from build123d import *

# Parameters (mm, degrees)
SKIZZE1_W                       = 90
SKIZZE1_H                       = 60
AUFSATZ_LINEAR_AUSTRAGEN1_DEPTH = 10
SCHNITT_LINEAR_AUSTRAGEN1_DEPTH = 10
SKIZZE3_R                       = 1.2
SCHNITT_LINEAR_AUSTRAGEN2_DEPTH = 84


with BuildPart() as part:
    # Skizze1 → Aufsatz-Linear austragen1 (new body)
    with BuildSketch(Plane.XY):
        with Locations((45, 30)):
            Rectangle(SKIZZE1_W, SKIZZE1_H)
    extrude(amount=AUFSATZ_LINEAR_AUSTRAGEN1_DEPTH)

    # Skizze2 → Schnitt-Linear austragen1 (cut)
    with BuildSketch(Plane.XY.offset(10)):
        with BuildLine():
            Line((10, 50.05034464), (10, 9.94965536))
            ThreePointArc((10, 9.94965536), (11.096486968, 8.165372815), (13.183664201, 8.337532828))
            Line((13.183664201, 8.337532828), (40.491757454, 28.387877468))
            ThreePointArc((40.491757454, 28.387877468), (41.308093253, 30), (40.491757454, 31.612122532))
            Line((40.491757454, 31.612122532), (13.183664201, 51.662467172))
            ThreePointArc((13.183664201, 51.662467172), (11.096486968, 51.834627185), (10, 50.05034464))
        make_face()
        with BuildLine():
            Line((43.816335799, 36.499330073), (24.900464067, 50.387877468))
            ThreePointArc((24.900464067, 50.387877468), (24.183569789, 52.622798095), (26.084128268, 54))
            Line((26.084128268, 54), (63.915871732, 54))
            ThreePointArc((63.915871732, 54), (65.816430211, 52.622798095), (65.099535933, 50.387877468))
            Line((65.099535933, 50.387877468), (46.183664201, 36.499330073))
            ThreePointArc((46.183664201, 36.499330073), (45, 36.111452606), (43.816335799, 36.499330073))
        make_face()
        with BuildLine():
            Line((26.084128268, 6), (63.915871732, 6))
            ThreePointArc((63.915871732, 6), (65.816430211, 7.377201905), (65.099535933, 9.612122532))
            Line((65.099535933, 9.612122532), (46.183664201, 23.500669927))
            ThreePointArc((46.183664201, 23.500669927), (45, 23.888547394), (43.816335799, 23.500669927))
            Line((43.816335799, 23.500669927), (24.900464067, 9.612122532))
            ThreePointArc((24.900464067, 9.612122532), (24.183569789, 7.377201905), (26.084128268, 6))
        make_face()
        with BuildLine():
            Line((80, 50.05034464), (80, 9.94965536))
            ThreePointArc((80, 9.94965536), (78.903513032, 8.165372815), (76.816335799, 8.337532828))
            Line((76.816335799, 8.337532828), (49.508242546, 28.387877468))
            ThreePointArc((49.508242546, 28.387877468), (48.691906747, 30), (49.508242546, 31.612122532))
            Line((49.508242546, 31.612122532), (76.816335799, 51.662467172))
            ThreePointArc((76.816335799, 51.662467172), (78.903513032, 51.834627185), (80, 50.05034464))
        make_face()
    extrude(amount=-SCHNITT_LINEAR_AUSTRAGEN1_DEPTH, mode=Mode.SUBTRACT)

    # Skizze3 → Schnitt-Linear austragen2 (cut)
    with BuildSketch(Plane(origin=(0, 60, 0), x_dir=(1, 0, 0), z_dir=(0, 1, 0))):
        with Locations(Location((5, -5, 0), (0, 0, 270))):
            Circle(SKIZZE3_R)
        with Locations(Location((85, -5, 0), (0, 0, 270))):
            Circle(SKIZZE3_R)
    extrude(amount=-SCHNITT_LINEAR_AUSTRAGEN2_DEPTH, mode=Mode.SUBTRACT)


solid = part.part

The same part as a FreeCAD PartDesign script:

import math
import FreeCAD as App
import Part
import Sketcher
from FreeCAD import Vector
Q = App.Units.Quantity


def add_polygon(sketch, points):
    """Adds a closed chain of lines whose ends are joined by coincident constraints."""
    first, n = sketch.GeometryCount, len(points)
    for a, b in zip(points, points[1:] + points[:1]):
        sketch.addGeometry(Part.LineSegment(App.Vector(*a, 0), App.Vector(*b, 0)), False)
    for i in range(n):
        sketch.addConstraint(Sketcher.Constraint("Coincident", first + i, 2, first + (i + 1) % n, 1))

doc = App.newDocument("Part")
params = doc.addObject("Spreadsheet::Sheet", "Params")
for row, (alias, value) in enumerate([
    ("sketch1_width", "90 mm"),
    ("sketch1_height", "60 mm"),
    ("pad1_length", "10 mm"),
    ("sketch2_radius", "2 mm"),
    ("pocket1_length", "10 mm"),
    ("sketch3_diameter", "2.4 mm"),
    ("pocket2_length", "84 mm"),
], start=1):
    params.set(f"A{row}", alias)
    params.set(f"B{row}", "=" + value)
    params.setAlias(f"B{row}", alias)

body = doc.addObject("PartDesign::Body", "Body")

# Sketch on XY plane
sketch1 = doc.addObject("Sketcher::SketchObject", "Sketch")
body.addObject(sketch1)
sketch1.AttachmentSupport = (doc.XY_Plane, [""])
sketch1.MapMode = "FlatFace"
add_polygon(sketch1, [(0, 60), (0, 0), (90, 0), (90, 60)])  # lines 0-3
sketch1.addConstraint(Sketcher.Constraint("Vertical", 0))
sketch1.addConstraint(Sketcher.Constraint("Horizontal", 1))
sketch1.addConstraint(Sketcher.Constraint("Vertical", 2))
sketch1.addConstraint(Sketcher.Constraint("Horizontal", 3))
sketch1.addConstraint(Sketcher.Constraint("Coincident", 0, 2, -1, 1))
sketch1.addConstraint(Sketcher.Constraint("DistanceX", 1, 1, 1, 2, Q("90 mm")))
sketch1.addConstraint(Sketcher.Constraint("DistanceY", 0, 2, 0, 1, Q("60 mm")))
sketch1.setExpression("Constraints[9]", "Params.sketch1_width")
sketch1.setExpression("Constraints[10]", "Params.sketch1_height")
pad1 = doc.addObject("PartDesign::Pad", "Pad")
body.addObject(pad1)
pad1.Profile = sketch1
pad1.setExpression("Length", "Params.pad1_length")

# Sketch on XY plane
sketch2 = doc.addObject("Sketcher::SketchObject", "Sketch001")
body.addObject(sketch2)
sketch2.AttachmentSupport = (doc.XY_Plane, [""])
sketch2.MapMode = "FlatFace"
sketch2.AttachmentOffset = App.Placement(Vector(0, 0, 10), App.Rotation())
sketch2.addGeometry(Part.LineSegment(Vector(10, 50.1, 0), Vector(10, 9.9, 0)), False)
sketch2.addGeometry(Part.ArcOfCircle(Part.Circle(Vector(12, 9.9, 0), Vector(0, 0, 1), 2), math.radians(180), math.radians(306)), False)
sketch2.addGeometry(Part.LineSegment(Vector(13.2, 8.3, 0), Vector(40.5, 28.4, 0)), False)
sketch2.addGeometry(Part.ArcOfCircle(Part.Circle(Vector(39.3, 30, 0), Vector(0, 0, 1), 2), math.radians(-54), math.radians(54)), False)
sketch2.addGeometry(Part.LineSegment(Vector(40.5, 31.6, 0), Vector(13.2, 51.7, 0)), False)
sketch2.addGeometry(Part.ArcOfCircle(Part.Circle(Vector(12, 50.1, 0), Vector(0, 0, 1), 2), math.radians(54), math.radians(180)), False)
sketch2.addGeometry(Part.LineSegment(Vector(24.9, 50.4, 0), Vector(43.8, 36.5, 0)), False)
sketch2.addGeometry(Part.ArcOfCircle(Part.Circle(Vector(45, 38.1, 0), Vector(0, 0, 1), 2), math.radians(-126), math.radians(-54)), False)
sketch2.addGeometry(Part.LineSegment(Vector(46.2, 36.5, 0), Vector(65.1, 50.4, 0)), False)
sketch2.addGeometry(Part.ArcOfCircle(Part.Circle(Vector(63.9, 52, 0), Vector(0, 0, 1), 2), math.radians(-54), math.radians(90)), False)
sketch2.addGeometry(Part.LineSegment(Vector(63.9, 54, 0), Vector(26.1, 54, 0)), False)
sketch2.addGeometry(Part.ArcOfCircle(Part.Circle(Vector(26.1, 52, 0), Vector(0, 0, 1), 2), math.radians(90), math.radians(234)), False)
sketch2.addGeometry(Part.LineSegment(Vector(26.1, 6, 0), Vector(63.9, 6, 0)), False)
sketch2.addGeometry(Part.ArcOfCircle(Part.Circle(Vector(63.9, 8, 0), Vector(0, 0, 1), 2), math.radians(-90), math.radians(54)), False)
sketch2.addGeometry(Part.LineSegment(Vector(65.1, 9.6, 0), Vector(46.2, 23.5, 0)), False)
sketch2.addGeometry(Part.ArcOfCircle(Part.Circle(Vector(45, 21.9, 0), Vector(0, 0, 1), 2), math.radians(54), math.radians(126)), False)
sketch2.addGeometry(Part.LineSegment(Vector(43.8, 23.5, 0), Vector(24.9, 9.6, 0)), False)
sketch2.addGeometry(Part.ArcOfCircle(Part.Circle(Vector(26.1, 8, 0), Vector(0, 0, 1), 2), math.radians(126), math.radians(270)), False)
sketch2.addGeometry(Part.LineSegment(Vector(80, 9.9, 0), Vector(80, 50.1, 0)), False)
sketch2.addGeometry(Part.ArcOfCircle(Part.Circle(Vector(78, 50.1, 0), Vector(0, 0, 1), 2), math.radians(0), math.radians(126)), False)
sketch2.addGeometry(Part.LineSegment(Vector(76.8, 51.7, 0), Vector(49.5, 31.6, 0)), False)
sketch2.addGeometry(Part.ArcOfCircle(Part.Circle(Vector(50.7, 30, 0), Vector(0, 0, 1), 2), math.radians(126), math.radians(234)), False)
sketch2.addGeometry(Part.LineSegment(Vector(49.5, 28.4, 0), Vector(76.8, 8.3, 0)), False)
sketch2.addGeometry(Part.ArcOfCircle(Part.Circle(Vector(78, 9.9, 0), Vector(0, 0, 1), 2), math.radians(-126), math.radians(0)), False)
sketch2.addConstraint(Sketcher.Constraint("Tangent", 0, 2, 1, 1))
sketch2.addConstraint(Sketcher.Constraint("Tangent", 1, 2, 2, 1))
sketch2.addConstraint(Sketcher.Constraint("Tangent", 2, 2, 3, 1))
sketch2.addConstraint(Sketcher.Constraint("Tangent", 3, 2, 4, 1))
sketch2.addConstraint(Sketcher.Constraint("Tangent", 4, 2, 5, 1))
sketch2.addConstraint(Sketcher.Constraint("Tangent", 5, 2, 0, 1))
sketch2.addConstraint(Sketcher.Constraint("Tangent", 6, 2, 7, 1))
sketch2.addConstraint(Sketcher.Constraint("Tangent", 7, 2, 8, 1))
sketch2.addConstraint(Sketcher.Constraint("Tangent", 8, 2, 9, 1))
sketch2.addConstraint(Sketcher.Constraint("Tangent", 9, 2, 10, 1))
sketch2.addConstraint(Sketcher.Constraint("Tangent", 10, 2, 11, 1))
sketch2.addConstraint(Sketcher.Constraint("Tangent", 11, 2, 6, 1))
sketch2.addConstraint(Sketcher.Constraint("Tangent", 12, 2, 13, 1))
sketch2.addConstraint(Sketcher.Constraint("Tangent", 13, 2, 14, 1))
sketch2.addConstraint(Sketcher.Constraint("Tangent", 14, 2, 15, 1))
sketch2.addConstraint(Sketcher.Constraint("Tangent", 15, 2, 16, 1))
sketch2.addConstraint(Sketcher.Constraint("Tangent", 16, 2, 17, 1))
sketch2.addConstraint(Sketcher.Constraint("Tangent", 17, 2, 12, 1))
sketch2.addConstraint(Sketcher.Constraint("Tangent", 18, 2, 19, 1))
sketch2.addConstraint(Sketcher.Constraint("Tangent", 19, 2, 20, 1))
sketch2.addConstraint(Sketcher.Constraint("Tangent", 20, 2, 21, 1))
sketch2.addConstraint(Sketcher.Constraint("Tangent", 21, 2, 22, 1))
sketch2.addConstraint(Sketcher.Constraint("Tangent", 22, 2, 23, 1))
sketch2.addConstraint(Sketcher.Constraint("Tangent", 23, 2, 18, 1))
sketch2.addConstraint(Sketcher.Constraint("Vertical", 0))
sketch2.addConstraint(Sketcher.Constraint("Horizontal", 10))
sketch2.addConstraint(Sketcher.Constraint("Horizontal", 12))
sketch2.addConstraint(Sketcher.Constraint("Vertical", 18))
sketch2.addConstraint(Sketcher.Constraint("Equal", 1, 3))
sketch2.addConstraint(Sketcher.Constraint("Equal", 3, 5))
sketch2.addConstraint(Sketcher.Constraint("Equal", 5, 7))
sketch2.addConstraint(Sketcher.Constraint("Equal", 7, 9))
sketch2.addConstraint(Sketcher.Constraint("Equal", 9, 11))
sketch2.addConstraint(Sketcher.Constraint("Equal", 11, 13))
sketch2.addConstraint(Sketcher.Constraint("Equal", 13, 15))
sketch2.addConstraint(Sketcher.Constraint("Equal", 15, 17))
sketch2.addConstraint(Sketcher.Constraint("Equal", 17, 19))
sketch2.addConstraint(Sketcher.Constraint("Equal", 19, 21))
sketch2.addConstraint(Sketcher.Constraint("Equal", 21, 23))
sketch2.addConstraint(Sketcher.Constraint("Parallel", 4, 6))
sketch2.addConstraint(Sketcher.Constraint("Parallel", 2, 8))
sketch2.addConstraint(Sketcher.Constraint("Parallel", 6, 14))
sketch2.addConstraint(Sketcher.Constraint("Parallel", 8, 16))
sketch2.addConstraint(Sketcher.Constraint("Parallel", 16, 20))
sketch2.addConstraint(Sketcher.Constraint("Parallel", 14, 22))
sketch2.addConstraint(Sketcher.Constraint("Horizontal", 5, 3, 19, 3))
sketch2.addConstraint(Sketcher.Constraint("Horizontal", 3, 3, 21, 3))
sketch2.addConstraint(Sketcher.Constraint("Horizontal", 1, 3, 23, 3))
sketch2.addConstraint(Sketcher.Constraint("Vertical", 9, 3, 13, 3))
sketch2.addConstraint(Sketcher.Constraint("Vertical", 7, 3, 15, 3))
sketch2.addConstraint(Sketcher.Constraint("Radius", 1, Q("2 mm")))
sketch2.addConstraint(Sketcher.Constraint("DistanceX", -1, 1, 1, 3, Q("12 mm")))
sketch2.addConstraint(Sketcher.Constraint("DistanceY", -1, 1, 3, 3, Q("30 mm")))
sketch2.addConstraint(Sketcher.Constraint("DistanceX", -1, 1, 7, 3, Q("45 mm")))
sketch2.addConstraint(Sketcher.Constraint("DistanceY", -1, 1, 9, 3, Q("52 mm")))
sketch2.addConstraint(Sketcher.Constraint("DistanceY", -1, 1, 13, 3, Q("8 mm")))
sketch2.addConstraint(Sketcher.Constraint("DistanceX", -1, 1, 19, 3, Q("78 mm")))
sketch2.addConstraint(Sketcher.Constraint("DistanceY", 0, 2, 0, 1, Q("40.100689 mm")))
sketch2.addConstraint(Sketcher.Constraint("DistanceX", 4, 2, 11, 2, Q("11.7168 mm")))
sketch2.addConstraint(Sketcher.Constraint("Distance", 6, Q("23.46704 mm")))
sketch2.setExpression("Constraints[50]", "Params.sketch2_radius")
pocket1 = doc.addObject("PartDesign::Pocket", "Pocket")
body.addObject(pocket1)
pocket1.Profile = sketch2
pocket1.setExpression("Length", "Params.pocket1_length")

# Sketch on XZ plane
sketch3 = doc.addObject("Sketcher::SketchObject", "Sketch002")
body.addObject(sketch3)
sketch3.AttachmentSupport = (doc.XZ_Plane, [""])
sketch3.MapMode = "FlatFace"
sketch3.AttachmentOffset = App.Placement(Vector(0, 0, -60), App.Rotation())
sketch3.addGeometry(Part.Circle(Vector(5, 5, 0), Vector(0, 0, 1), 1.2), False)
sketch3.addGeometry(Part.Circle(Vector(85, 5, 0), Vector(0, 0, 1), 1.2), False)
sketch3.addConstraint(Sketcher.Constraint("Equal", 0, 1))
sketch3.addConstraint(Sketcher.Constraint("Horizontal", 0, 3, 1, 3))
sketch3.addConstraint(Sketcher.Constraint("Diameter", 0, Q("2.4 mm")))
sketch3.addConstraint(Sketcher.Constraint("DistanceX", -1, 1, 0, 3, Q("5 mm")))
sketch3.addConstraint(Sketcher.Constraint("DistanceY", -1, 1, 0, 3, Q("5 mm")))
sketch3.addConstraint(Sketcher.Constraint("DistanceX", -1, 1, 1, 3, Q("85 mm")))
sketch3.setExpression("Constraints[2]", "Params.sketch3_diameter")
pocket2 = doc.addObject("PartDesign::Pocket", "Pocket001")
body.addObject(pocket2)
pocket2.Profile = sketch3
pocket2.setExpression("Length", "Params.pocket2_length")
pocket2.Reversed = True

doc.recompute()
